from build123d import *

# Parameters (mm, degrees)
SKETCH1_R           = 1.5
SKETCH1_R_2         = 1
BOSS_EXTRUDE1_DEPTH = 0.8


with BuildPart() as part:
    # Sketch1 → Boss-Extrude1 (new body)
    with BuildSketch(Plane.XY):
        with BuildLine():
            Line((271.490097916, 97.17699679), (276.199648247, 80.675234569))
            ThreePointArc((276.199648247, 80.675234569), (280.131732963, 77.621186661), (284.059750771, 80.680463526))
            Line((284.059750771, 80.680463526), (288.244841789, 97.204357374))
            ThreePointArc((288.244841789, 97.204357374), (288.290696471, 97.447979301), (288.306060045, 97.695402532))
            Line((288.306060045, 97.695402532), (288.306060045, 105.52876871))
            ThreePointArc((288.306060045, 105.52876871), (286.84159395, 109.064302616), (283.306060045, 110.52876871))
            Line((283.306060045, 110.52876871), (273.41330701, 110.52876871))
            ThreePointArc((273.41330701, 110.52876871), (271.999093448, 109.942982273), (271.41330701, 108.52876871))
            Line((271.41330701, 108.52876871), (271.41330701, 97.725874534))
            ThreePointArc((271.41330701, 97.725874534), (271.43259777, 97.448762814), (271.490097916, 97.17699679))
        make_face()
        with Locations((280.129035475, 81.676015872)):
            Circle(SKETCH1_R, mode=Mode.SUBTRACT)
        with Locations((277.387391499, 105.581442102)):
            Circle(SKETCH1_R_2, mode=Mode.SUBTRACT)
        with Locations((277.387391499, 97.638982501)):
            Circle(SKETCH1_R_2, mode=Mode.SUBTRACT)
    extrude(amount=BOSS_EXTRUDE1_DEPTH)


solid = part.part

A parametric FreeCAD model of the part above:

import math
import FreeCAD as App
import Part
import Sketcher
from FreeCAD import Vector

doc = App.newDocument("Part")
params = doc.addObject("Spreadsheet::Sheet", "Params")
for row, (alias, value) in enumerate([
    ("sketch1_diameter", "3 mm"),
    ("sketch1_diameter2", "2 mm"),
    ("sketch1_diameter3", "2 mm"),
    ("sketch1_radius", "2 mm"),
    ("sketch1_radius2", "5 mm"),
    ("pad1_length", "0.8 mm"),
], start=1):
    params.set(f"A{row}", alias)
    params.set(f"B{row}", "=" + value)
    params.setAlias(f"B{row}", alias)

body = doc.addObject("PartDesign::Body", "Body")

# Sketch on XY plane
sketch1 = body.newObject("Sketcher::SketchObject", "Sketch")
sketch1.AttachmentSupport = (doc.getObject("XY_Plane"), [""])
sketch1.MapMode = "FlatFace"
sketch1.addGeometry([
    Part.LineSegment(Vector(271.490098, 97.176997, 0), Vector(276.199648, 80.675235, 0)),  # 0
    Part.ArcOfCircle(Part.Circle(Vector(280.129035, 81.676016, 0), Vector(0, 0, 1), 4.05483), math.radians(-165.711049), math.radians(-14.212719)),  # 1
    Part.LineSegment(Vector(284.059751, 80.680464, 0), Vector(288.244842, 97.204357, 0)),  # 2
    Part.ArcOfCircle(Part.Circle(Vector(286.30606, 97.695403, 0), Vector(0, 0, 1), 2), math.radians(-14.212719), math.radians(0)),  # 3
    Part.LineSegment(Vector(288.30606, 97.695403, 0), Vector(288.30606, 105.528769, 0)),  # 4
    Part.ArcOfCircle(Part.Circle(Vector(283.30606, 105.528769, 0), Vector(0, 0, 1), 5), math.radians(0), math.radians(90)),  # 5
    Part.LineSegment(Vector(283.30606, 110.528769, 0), Vector(273.413307, 110.528769, 0)),  # 6
    Part.ArcOfCircle(Part.Circle(Vector(273.413307, 108.528769, 0), Vector(0, 0, 1), 2), math.radians(90), math.radians(180)),  # 7
    Part.LineSegment(Vector(271.413307, 108.528769, 0), Vector(271.413307, 97.725875, 0)),  # 8
    Part.ArcOfCircle(Part.Circle(Vector(273.413307, 97.725875, 0), Vector(0, 0, 1), 2), math.radians(-180), math.radians(-164.071422)),  # 9
    Part.Circle(Vector(280.129035, 81.676016, 0), Vector(0, 0, 1), 1.5),  # 10
    Part.Circle(Vector(277.387391, 97.638983, 0), Vector(0, 0, 1), 1),  # 11
    Part.Circle(Vector(277.387391, 105.581442, 0), Vector(0, 0, 1), 1),  # 12
], False)
sketch1.addConstraint([
    Sketcher.Constraint("Coincident", 0, 2, 1, 1),
    Sketcher.Constraint("Coincident", 1, 2, 2, 1),
    Sketcher.Constraint("Coincident", 2, 2, 3, 1),
    Sketcher.Constraint("Coincident", 3, 2, 4, 1),
    Sketcher.Constraint("Coincident", 4, 2, 5, 1),
    Sketcher.Constraint("Coincident", 5, 2, 6, 1),
    Sketcher.Constraint("Coincident", 6, 2, 7, 1),
    Sketcher.Constraint("Coincident", 7, 2, 8, 1),
    Sketcher.Constraint("Coincident", 8, 2, 9, 1),
    Sketcher.Constraint("Coincident", 9, 2, 0, 1),
    Sketcher.Constraint("Vertical", 4),
    Sketcher.Constraint("Horizontal", 6),
    Sketcher.Constraint("Vertical", 8),
    Sketcher.Constraint("Coincident", 10, 3, 1, 3),
    Sketcher.Constraint("Diameter", 10, 3.0),
    Sketcher.Constraint("Diameter", 11, 2.0),
    Sketcher.Constraint("Diameter", 12, 2.0),
    Sketcher.Constraint("Radius", 3, 2.0),
    Sketcher.Constraint("Radius", 5, 5.0),
    Sketcher.Constraint("Radius", 7, 2.0),
    Sketcher.Constraint("Radius", 9, 2.0),
    Sketcher.Constraint("DistanceX", 5, 2, 4, 2, 5.0),
    Sketcher.Constraint("DistanceY", 4, 2, 5, 2, 5.0),
    Sketcher.Constraint("DistanceX", 7, 2, 6, 2, 2.0),
    Sketcher.Constraint("DistanceY", 7, 2, 6, 2, 2.0),
    Sketcher.Constraint("Radius", 1, 4.05483),
    Sketcher.Constraint("DistanceX", 6, 2, 6, 1, 9.892753),
    Sketcher.Constraint("DistanceY", 4, 1, 4, 2, 7.833366),
    Sketcher.Constraint("DistanceY", 8, 2, 8, 1, 10.802894),
    Sketcher.Constraint("DistanceX", -1, 1, 3, 3, 286.30606),
    Sketcher.Constraint("DistanceY", -1, 1, 5, 3, 105.528769),
    Sketcher.Constraint("DistanceX", -1, 1, 11, 3, 277.387391),
    Sketcher.Constraint("DistanceX", -1, 1, 12, 3, 277.387391),
    Sketcher.Constraint("DistanceX", -1, 1, 0, 2, 276.199648),
    Sketcher.Constraint("DistanceX", -1, 1, 1, 2, 284.059751),
    Sketcher.Constraint("DistanceX", -1, 1, 2, 2, 288.244842),
    Sketcher.Constraint("DistanceX", 7, 3, 1, 3, 6.715728),
    Sketcher.Constraint("DistanceY", 1, 3, 9, 3, 16.049859),
    Sketcher.Constraint("DistanceY", 11, 3, 3, 3, 0.05642),
    Sketcher.Constraint("DistanceY", 11, 3, 12, 3, 7.94246),
    Sketcher.Constraint("DistanceY", 1, 2, 3, 3, 17.014939),
    Sketcher.Constraint("DistanceY", 2, 2, 5, 3, 8.324411),
    Sketcher.Constraint("DistanceX", 8, 2, 9, 2, 0.076791),
])
sketch1.setExpression("Constraints[14]", "Params.sketch1_diameter")
sketch1.setExpression("Constraints[15]", "Params.sketch1_diameter2")
sketch1.setExpression("Constraints[16]", "Params.sketch1_diameter3")
sketch1.setExpression("Constraints[17]", "Params.sketch1_radius")
sketch1.setExpression("Constraints[18]", "Params.sketch1_radius2")
pad1 = body.newObject("PartDesign::Pad", "Pad")
pad1.Profile = sketch1
pad1.setExpression("Length", "Params.pad1_length")

doc.recompute()
